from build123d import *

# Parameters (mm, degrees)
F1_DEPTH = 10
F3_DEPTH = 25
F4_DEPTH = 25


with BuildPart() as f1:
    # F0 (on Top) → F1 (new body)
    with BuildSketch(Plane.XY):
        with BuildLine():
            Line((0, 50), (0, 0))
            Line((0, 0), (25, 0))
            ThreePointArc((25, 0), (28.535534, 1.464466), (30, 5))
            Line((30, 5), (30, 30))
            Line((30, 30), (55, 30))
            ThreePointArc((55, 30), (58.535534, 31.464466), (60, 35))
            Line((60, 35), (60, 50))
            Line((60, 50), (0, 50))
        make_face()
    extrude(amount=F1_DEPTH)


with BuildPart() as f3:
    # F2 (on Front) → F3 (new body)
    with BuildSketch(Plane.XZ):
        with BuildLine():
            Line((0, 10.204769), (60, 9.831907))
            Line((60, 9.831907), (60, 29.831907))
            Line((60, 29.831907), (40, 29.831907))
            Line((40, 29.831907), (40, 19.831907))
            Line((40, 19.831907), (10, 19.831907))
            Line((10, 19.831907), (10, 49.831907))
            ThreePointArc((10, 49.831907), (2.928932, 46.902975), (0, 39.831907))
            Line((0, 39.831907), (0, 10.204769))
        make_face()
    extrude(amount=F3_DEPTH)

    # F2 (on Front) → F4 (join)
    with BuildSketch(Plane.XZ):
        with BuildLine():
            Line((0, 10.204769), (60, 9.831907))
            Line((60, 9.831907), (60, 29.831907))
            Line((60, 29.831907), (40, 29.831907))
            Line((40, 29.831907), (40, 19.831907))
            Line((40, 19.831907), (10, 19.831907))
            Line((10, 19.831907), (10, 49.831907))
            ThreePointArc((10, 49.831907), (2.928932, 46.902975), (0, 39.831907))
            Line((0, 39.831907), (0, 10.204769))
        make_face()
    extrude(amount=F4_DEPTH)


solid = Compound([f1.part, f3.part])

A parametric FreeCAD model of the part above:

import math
import FreeCAD as App
import Part
import Sketcher

V = App.Vector
Q = App.Units.Quantity

doc = App.newDocument("Part")
body = doc.addObject("PartDesign::Body", "Body")

# Sketch on XY plane
sketch1 = doc.addObject("Sketcher::SketchObject", "Sketch")
body.addObject(sketch1)
sketch1.AttachmentSupport = (doc.XY_Plane, [""])
sketch1.MapMode = "FlatFace"
sketch1.addGeometry([
    Part.LineSegment(V(0, 50, 0), V(0, 0, 0)),  # 0
    Part.LineSegment(V(0, 0, 0), V(25, 0, 0)),  # 1
    Part.ArcOfCircle(Part.Circle(V(25, 5, 0), V(0, 0, 1), 5), math.radians(-90.000004), math.radians(0.000004)),  # 2
    Part.LineSegment(V(30, 5, 0), V(30, 30, 0)),  # 3
    Part.LineSegment(V(30, 30, 0), V(55, 30, 0)),  # 4
    Part.ArcOfCircle(Part.Circle(V(55, 35, 0), V(0, 0, 1), 5), math.radians(-90.000004), math.radians(0.000004)),  # 5
    Part.LineSegment(V(60, 35, 0), V(60, 50, 0)),  # 6
    Part.LineSegment(V(60, 50, 0), V(0, 50, 0)),  # 7
], False)
sketch1.addConstraint([
    Sketcher.Constraint("Coincident", 0, 2, 1, 1),
    Sketcher.Constraint("Tangent", 1, 2, 2, 1),
    Sketcher.Constraint("Tangent", 2, 2, 3, 1),
    Sketcher.Constraint("Coincident", 3, 2, 4, 1),
    Sketcher.Constraint("Tangent", 4, 2, 5, 1),
    Sketcher.Constraint("Tangent", 5, 2, 6, 1),
    Sketcher.Constraint("Coincident", 6, 2, 7, 1),
    Sketcher.Constraint("Coincident", 7, 2, 0, 1),
    Sketcher.Constraint("Vertical", 0),
    Sketcher.Constraint("Horizontal", 1),
    Sketcher.Constraint("Vertical", 3),
    Sketcher.Constraint("Horizontal", 4),
    Sketcher.Constraint("Vertical", 6),
    Sketcher.Constraint("Horizontal", 7),
    Sketcher.Constraint("Coincident", 0, 2, -1, 1),
    Sketcher.Constraint("Equal", 2, 5),
    Sketcher.Constraint("Equal", 1, 4),
    Sketcher.Constraint("Equal", 4, 3),
    Sketcher.Constraint("Radius", 2, Q("5 mm")),
    Sketcher.Constraint("DistanceX", 1, 1, 1, 2, Q("25 mm")),
    Sketcher.Constraint("DistanceY", 0, 2, 0, 1, Q("50 mm")),
])
pad1 = doc.addObject("PartDesign::Pad", "Pad")
body.addObject(pad1)
pad1.Profile = sketch1
pad1.Length = 10
body2 = doc.addObject("PartDesign::Body", "Body001")

# Sketch on XZ plane
sketch2 = doc.addObject("Sketcher::SketchObject", "Sketch001")
body2.addObject(sketch2)
sketch2.AttachmentSupport = (doc.getObject("XZ_Plane001"), [""])
sketch2.MapMode = "FlatFace"
sketch2.addGeometry([
    Part.LineSegment(V(0, 10.204769, 0), V(60, 9.831907, 0)),  # 0
    Part.LineSegment(V(60, 9.831907, 0), V(60, 29.831907, 0)),  # 1
    Part.LineSegment(V(60, 29.831907, 0), V(40, 29.831907, 0)),  # 2
    Part.LineSegment(V(40, 29.831907, 0), V(40, 19.831907, 0)),  # 3
    Part.LineSegment(V(40, 19.831907, 0), V(10, 19.831907, 0)),  # 4
    Part.LineSegment(V(10, 19.831907, 0), V(10, 49.831907, 0)),  # 5
    Part.ArcOfCircle(Part.Circle(V(9.999999, 39.831908, 0), V(0, 0, 1), 9.999999), math.radians(89.999996), math.radians(180.000004)),  # 6
    Part.LineSegment(V(0, 39.831907, 0), V(0, 10.204769, 0)),  # 7
], False)
sketch2.addConstraint([
    Sketcher.Constraint("Coincident", 0, 2, 1, 1),
    Sketcher.Constraint("Coincident", 1, 2, 2, 1),
    Sketcher.Constraint("Coincident", 2, 2, 3, 1),
    Sketcher.Constraint("Coincident", 3, 2, 4, 1),
    Sketcher.Constraint("Coincident", 4, 2, 5, 1),
    Sketcher.Constraint("Coincident", 5, 2, 6, 1),
    Sketcher.Constraint("Tangent", 6, 2, 7, 1),
    Sketcher.Constraint("Coincident", 7, 2, 0, 1),
    Sketcher.Constraint("Vertical", 1),
    Sketcher.Constraint("Horizontal", 2),
    Sketcher.Constraint("Vertical", 3),
    Sketcher.Constraint("Horizontal", 4),
    Sketcher.Constraint("Vertical", 5),
    Sketcher.Constraint("Vertical", 7),
    Sketcher.Constraint("PointOnObject", 6, 2, -2),
    Sketcher.Constraint("Vertical", 6, 3, 4, 2),
    Sketcher.Constraint("Equal", 2, 1),
    Sketcher.Constraint("Equal", 4, 5),
    Sketcher.Constraint("Radius", 6, Q("9.999999 mm")),
    Sketcher.Constraint("DistanceX", 2, 2, 2, 1, Q("20 mm")),
    Sketcher.Constraint("DistanceX", 4, 2, 4, 1, Q("30 mm")),
    Sketcher.Constraint("DistanceY", 3, 2, 3, 1, Q("10 mm")),
    Sketcher.Constraint("DistanceY", 7, 2, 7, 1, Q("29.627138 mm")),
    Sketcher.Constraint("DistanceY", -1, 1, 7, 2, Q("10.204769 mm")),
])
pad2 = doc.addObject("PartDesign::Pad", "Pad001")
body2.addObject(pad2)
pad2.Profile = sketch2
pad2.Length = 25

# Sketch on XZ plane
sketch3 = doc.addObject("Sketcher::SketchObject", "Sketch002")
body2.addObject(sketch3)
sketch3.AttachmentSupport = (doc.getObject("XZ_Plane001"), [""])
sketch3.MapMode = "FlatFace"
sketch3.addGeometry([
    Part.LineSegment(V(0, 10.204769, 0), V(60, 9.831907, 0)),  # 0
    Part.LineSegment(V(60, 9.831907, 0), V(60, 29.831907, 0)),  # 1
    Part.LineSegment(V(60, 29.831907, 0), V(40, 29.831907, 0)),  # 2
    Part.LineSegment(V(40, 29.831907, 0), V(40, 19.831907, 0)),  # 3
    Part.LineSegment(V(40, 19.831907, 0), V(10, 19.831907, 0)),  # 4
    Part.LineSegment(V(10, 19.831907, 0), V(10, 49.831907, 0)),  # 5
    Part.ArcOfCircle(Part.Circle(V(9.999999, 39.831908, 0), V(0, 0, 1), 9.999999), math.radians(89.999996), math.radians(180.000004)),  # 6
    Part.LineSegment(V(0, 39.831907, 0), V(0, 10.204769, 0)),  # 7
], False)
sketch3.addConstraint([
    Sketcher.Constraint("Coincident", 0, 2, 1, 1),
    Sketcher.Constraint("Coincident", 1, 2, 2, 1),
    Sketcher.Constraint("Coincident", 2, 2, 3, 1),
    Sketcher.Constraint("Coincident", 3, 2, 4, 1),
    Sketcher.Constraint("Coincident", 4, 2, 5, 1),
    Sketcher.Constraint("Coincident", 5, 2, 6, 1),
    Sketcher.Constraint("Tangent", 6, 2, 7, 1),
    Sketcher.Constraint("Coincident", 7, 2, 0, 1),
    Sketcher.Constraint("Vertical", 1),
    Sketcher.Constraint("Horizontal", 2),
    Sketcher.Constraint("Vertical", 3),
    Sketcher.Constraint("Horizontal", 4),
    Sketcher.Constraint("Vertical", 5),
    Sketcher.Constraint("Vertical", 7),
    Sketcher.Constraint("PointOnObject", 6, 2, -2),
    Sketcher.Constraint("Vertical", 6, 3, 4, 2),
    Sketcher.Constraint("Equal", 2, 1),
    Sketcher.Constraint("Equal", 4, 5),
    Sketcher.Constraint("Radius", 6, Q("9.999999 mm")),
    Sketcher.Constraint("DistanceX", 2, 2, 2, 1, Q("20 mm")),
    Sketcher.Constraint("DistanceX", 4, 2, 4, 1, Q("30 mm")),
    Sketcher.Constraint("DistanceY", 3, 2, 3, 1, Q("10 mm")),
    Sketcher.Constraint("DistanceY", 7, 2, 7, 1, Q("29.627138 mm")),
    Sketcher.Constraint("DistanceY", -1, 1, 7, 2, Q("10.204769 mm")),
])
pad3 = doc.addObject("PartDesign::Pad", "Pad002")
body2.addObject(pad3)
pad3.Profile = sketch3
pad3.Length = 25

doc.recompute()
